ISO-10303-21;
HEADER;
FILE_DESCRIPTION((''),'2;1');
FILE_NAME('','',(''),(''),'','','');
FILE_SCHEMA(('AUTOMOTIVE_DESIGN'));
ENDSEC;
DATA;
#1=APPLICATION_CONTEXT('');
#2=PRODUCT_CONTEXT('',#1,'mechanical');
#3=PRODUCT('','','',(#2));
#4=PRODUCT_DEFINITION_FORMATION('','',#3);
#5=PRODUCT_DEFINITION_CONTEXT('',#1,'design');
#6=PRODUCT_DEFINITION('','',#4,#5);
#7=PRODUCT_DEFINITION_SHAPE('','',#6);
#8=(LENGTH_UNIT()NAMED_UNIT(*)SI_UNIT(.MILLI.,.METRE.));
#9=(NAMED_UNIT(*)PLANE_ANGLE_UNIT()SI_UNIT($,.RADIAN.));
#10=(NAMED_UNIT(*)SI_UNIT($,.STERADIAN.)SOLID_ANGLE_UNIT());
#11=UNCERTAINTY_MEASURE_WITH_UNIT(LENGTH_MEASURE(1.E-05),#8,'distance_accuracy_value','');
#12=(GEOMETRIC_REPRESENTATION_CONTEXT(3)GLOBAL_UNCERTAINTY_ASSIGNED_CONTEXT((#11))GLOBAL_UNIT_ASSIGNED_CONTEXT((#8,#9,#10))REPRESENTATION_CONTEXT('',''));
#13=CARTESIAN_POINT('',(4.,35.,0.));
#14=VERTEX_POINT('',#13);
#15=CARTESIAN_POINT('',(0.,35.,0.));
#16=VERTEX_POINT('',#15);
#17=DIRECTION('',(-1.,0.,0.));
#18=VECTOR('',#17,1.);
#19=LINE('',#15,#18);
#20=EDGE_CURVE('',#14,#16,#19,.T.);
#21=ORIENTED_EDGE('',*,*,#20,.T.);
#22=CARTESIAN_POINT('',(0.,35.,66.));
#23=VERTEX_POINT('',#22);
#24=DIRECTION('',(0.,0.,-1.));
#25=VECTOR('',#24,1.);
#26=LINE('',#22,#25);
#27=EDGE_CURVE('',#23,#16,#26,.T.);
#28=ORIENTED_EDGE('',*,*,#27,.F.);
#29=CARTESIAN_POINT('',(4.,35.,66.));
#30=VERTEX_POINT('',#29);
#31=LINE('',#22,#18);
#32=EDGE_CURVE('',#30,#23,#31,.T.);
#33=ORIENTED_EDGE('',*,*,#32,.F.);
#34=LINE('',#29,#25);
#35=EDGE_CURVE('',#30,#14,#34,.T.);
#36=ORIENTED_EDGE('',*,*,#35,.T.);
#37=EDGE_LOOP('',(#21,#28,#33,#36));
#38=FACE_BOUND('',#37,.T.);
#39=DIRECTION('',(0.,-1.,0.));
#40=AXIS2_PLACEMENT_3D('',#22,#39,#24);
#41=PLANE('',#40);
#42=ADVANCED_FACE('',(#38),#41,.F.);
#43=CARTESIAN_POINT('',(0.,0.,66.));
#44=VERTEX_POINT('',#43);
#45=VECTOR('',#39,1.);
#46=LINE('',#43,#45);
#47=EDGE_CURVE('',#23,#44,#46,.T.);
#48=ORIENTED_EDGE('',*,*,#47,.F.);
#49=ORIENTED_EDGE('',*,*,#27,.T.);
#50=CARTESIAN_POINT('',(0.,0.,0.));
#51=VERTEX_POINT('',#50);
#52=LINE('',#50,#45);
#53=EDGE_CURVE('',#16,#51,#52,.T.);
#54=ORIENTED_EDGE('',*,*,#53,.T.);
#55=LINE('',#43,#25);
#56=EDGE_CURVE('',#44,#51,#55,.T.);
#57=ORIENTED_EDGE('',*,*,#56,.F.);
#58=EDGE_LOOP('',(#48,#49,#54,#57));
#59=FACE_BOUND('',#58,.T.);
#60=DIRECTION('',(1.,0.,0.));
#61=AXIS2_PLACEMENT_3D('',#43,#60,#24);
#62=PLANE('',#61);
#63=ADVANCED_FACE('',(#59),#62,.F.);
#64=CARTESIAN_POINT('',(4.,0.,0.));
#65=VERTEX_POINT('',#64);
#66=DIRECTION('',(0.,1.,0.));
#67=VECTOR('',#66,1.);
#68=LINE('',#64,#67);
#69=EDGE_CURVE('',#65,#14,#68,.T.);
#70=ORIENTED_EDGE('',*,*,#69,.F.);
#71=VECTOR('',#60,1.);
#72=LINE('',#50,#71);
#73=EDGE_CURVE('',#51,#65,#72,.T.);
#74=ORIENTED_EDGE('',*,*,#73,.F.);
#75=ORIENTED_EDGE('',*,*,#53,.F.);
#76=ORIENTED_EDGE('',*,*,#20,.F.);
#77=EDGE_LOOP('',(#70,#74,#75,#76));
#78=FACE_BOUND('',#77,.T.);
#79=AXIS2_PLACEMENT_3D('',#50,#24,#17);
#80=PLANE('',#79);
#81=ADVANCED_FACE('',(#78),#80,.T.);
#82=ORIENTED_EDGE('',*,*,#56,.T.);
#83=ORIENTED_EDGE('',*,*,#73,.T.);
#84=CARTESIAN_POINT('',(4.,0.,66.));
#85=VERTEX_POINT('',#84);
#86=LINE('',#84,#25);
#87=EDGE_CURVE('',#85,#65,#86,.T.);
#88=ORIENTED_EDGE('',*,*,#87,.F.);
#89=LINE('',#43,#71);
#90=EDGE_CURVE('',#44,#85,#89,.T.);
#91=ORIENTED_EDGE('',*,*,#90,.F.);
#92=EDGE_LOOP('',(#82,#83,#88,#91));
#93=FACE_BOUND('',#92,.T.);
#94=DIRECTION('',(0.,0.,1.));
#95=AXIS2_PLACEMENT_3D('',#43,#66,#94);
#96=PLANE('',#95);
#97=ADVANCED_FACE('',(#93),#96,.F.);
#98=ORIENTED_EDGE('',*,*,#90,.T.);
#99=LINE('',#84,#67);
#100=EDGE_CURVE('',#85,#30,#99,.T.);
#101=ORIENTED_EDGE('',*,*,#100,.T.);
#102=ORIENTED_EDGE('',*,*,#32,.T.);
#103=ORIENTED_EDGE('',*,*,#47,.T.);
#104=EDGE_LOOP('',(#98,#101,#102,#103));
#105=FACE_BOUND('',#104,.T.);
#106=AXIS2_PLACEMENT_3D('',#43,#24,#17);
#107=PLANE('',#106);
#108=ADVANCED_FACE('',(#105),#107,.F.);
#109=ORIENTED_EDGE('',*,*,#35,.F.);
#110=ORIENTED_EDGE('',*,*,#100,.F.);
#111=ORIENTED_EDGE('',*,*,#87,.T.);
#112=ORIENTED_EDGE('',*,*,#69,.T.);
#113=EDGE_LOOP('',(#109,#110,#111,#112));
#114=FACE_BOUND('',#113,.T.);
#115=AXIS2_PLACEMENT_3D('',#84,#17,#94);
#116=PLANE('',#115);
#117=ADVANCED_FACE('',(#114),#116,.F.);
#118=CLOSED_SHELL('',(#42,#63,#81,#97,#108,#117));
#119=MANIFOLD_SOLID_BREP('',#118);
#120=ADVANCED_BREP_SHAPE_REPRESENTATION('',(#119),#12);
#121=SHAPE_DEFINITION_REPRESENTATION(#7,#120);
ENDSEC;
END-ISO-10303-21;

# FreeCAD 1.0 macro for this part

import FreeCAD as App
import Part
import Sketcher

doc = App.newDocument("Part")
params = doc.addObject("Spreadsheet::Sheet", "Params")
for row, (alias, value) in enumerate([
    ("sketch1_width", "4 mm"),
    ("sketch1_height", "35 mm"),
    ("pad1_length", "66 mm"),
], start=1):
    params.set(f"A{row}", alias)
    params.set(f"B{row}", "=" + value)
    params.setAlias(f"B{row}", alias)

body = doc.addObject("PartDesign::Body", "Body")

# Sketch on XY plane
sketch1 = body.newObject("Sketcher::SketchObject", "Sketch")
sketch1.AttachmentSupport = (doc.getObject("XY_Plane"), [""])
sketch1.MapMode = "FlatFace"
sketch1.addGeometry([
    Part.LineSegment(App.Vector(0, 35, 0), App.Vector(0, 0, 0)),
    Part.LineSegment(App.Vector(0, 0, 0), App.Vector(4, 0, 0)),
    Part.LineSegment(App.Vector(4, 0, 0), App.Vector(4, 35, 0)),
    Part.LineSegment(App.Vector(4, 35, 0), App.Vector(0, 35, 0)),
], False)
sketch1.addConstraint([
    Sketcher.Constraint("Coincident", 0, 2, 1, 1),
    Sketcher.Constraint("Coincident", 1, 2, 2, 1),
    Sketcher.Constraint("Coincident", 2, 2, 3, 1),
    Sketcher.Constraint("Coincident", 3, 2, 0, 1),
    Sketcher.Constraint("Vertical", 0),
    Sketcher.Constraint("Horizontal", 1),
    Sketcher.Constraint("Vertical", 2),
    Sketcher.Constraint("Horizontal", 3),
    Sketcher.Constraint("Coincident", 0, 2, -1, 1),
    Sketcher.Constraint("DistanceX", 1, 1, 1, 2, 4.0),
    Sketcher.Constraint("DistanceY", 0, 2, 0, 1, 35.0),
])
sketch1.setExpression("Constraints[9]", "Params.sketch1_width")
sketch1.setExpression("Constraints[10]", "Params.sketch1_height")
pad1 = body.newObject("PartDesign::Pad", "Pad")
pad1.Profile = sketch1
pad1.setExpression("Length", "Params.pad1_length")

doc.recompute()
